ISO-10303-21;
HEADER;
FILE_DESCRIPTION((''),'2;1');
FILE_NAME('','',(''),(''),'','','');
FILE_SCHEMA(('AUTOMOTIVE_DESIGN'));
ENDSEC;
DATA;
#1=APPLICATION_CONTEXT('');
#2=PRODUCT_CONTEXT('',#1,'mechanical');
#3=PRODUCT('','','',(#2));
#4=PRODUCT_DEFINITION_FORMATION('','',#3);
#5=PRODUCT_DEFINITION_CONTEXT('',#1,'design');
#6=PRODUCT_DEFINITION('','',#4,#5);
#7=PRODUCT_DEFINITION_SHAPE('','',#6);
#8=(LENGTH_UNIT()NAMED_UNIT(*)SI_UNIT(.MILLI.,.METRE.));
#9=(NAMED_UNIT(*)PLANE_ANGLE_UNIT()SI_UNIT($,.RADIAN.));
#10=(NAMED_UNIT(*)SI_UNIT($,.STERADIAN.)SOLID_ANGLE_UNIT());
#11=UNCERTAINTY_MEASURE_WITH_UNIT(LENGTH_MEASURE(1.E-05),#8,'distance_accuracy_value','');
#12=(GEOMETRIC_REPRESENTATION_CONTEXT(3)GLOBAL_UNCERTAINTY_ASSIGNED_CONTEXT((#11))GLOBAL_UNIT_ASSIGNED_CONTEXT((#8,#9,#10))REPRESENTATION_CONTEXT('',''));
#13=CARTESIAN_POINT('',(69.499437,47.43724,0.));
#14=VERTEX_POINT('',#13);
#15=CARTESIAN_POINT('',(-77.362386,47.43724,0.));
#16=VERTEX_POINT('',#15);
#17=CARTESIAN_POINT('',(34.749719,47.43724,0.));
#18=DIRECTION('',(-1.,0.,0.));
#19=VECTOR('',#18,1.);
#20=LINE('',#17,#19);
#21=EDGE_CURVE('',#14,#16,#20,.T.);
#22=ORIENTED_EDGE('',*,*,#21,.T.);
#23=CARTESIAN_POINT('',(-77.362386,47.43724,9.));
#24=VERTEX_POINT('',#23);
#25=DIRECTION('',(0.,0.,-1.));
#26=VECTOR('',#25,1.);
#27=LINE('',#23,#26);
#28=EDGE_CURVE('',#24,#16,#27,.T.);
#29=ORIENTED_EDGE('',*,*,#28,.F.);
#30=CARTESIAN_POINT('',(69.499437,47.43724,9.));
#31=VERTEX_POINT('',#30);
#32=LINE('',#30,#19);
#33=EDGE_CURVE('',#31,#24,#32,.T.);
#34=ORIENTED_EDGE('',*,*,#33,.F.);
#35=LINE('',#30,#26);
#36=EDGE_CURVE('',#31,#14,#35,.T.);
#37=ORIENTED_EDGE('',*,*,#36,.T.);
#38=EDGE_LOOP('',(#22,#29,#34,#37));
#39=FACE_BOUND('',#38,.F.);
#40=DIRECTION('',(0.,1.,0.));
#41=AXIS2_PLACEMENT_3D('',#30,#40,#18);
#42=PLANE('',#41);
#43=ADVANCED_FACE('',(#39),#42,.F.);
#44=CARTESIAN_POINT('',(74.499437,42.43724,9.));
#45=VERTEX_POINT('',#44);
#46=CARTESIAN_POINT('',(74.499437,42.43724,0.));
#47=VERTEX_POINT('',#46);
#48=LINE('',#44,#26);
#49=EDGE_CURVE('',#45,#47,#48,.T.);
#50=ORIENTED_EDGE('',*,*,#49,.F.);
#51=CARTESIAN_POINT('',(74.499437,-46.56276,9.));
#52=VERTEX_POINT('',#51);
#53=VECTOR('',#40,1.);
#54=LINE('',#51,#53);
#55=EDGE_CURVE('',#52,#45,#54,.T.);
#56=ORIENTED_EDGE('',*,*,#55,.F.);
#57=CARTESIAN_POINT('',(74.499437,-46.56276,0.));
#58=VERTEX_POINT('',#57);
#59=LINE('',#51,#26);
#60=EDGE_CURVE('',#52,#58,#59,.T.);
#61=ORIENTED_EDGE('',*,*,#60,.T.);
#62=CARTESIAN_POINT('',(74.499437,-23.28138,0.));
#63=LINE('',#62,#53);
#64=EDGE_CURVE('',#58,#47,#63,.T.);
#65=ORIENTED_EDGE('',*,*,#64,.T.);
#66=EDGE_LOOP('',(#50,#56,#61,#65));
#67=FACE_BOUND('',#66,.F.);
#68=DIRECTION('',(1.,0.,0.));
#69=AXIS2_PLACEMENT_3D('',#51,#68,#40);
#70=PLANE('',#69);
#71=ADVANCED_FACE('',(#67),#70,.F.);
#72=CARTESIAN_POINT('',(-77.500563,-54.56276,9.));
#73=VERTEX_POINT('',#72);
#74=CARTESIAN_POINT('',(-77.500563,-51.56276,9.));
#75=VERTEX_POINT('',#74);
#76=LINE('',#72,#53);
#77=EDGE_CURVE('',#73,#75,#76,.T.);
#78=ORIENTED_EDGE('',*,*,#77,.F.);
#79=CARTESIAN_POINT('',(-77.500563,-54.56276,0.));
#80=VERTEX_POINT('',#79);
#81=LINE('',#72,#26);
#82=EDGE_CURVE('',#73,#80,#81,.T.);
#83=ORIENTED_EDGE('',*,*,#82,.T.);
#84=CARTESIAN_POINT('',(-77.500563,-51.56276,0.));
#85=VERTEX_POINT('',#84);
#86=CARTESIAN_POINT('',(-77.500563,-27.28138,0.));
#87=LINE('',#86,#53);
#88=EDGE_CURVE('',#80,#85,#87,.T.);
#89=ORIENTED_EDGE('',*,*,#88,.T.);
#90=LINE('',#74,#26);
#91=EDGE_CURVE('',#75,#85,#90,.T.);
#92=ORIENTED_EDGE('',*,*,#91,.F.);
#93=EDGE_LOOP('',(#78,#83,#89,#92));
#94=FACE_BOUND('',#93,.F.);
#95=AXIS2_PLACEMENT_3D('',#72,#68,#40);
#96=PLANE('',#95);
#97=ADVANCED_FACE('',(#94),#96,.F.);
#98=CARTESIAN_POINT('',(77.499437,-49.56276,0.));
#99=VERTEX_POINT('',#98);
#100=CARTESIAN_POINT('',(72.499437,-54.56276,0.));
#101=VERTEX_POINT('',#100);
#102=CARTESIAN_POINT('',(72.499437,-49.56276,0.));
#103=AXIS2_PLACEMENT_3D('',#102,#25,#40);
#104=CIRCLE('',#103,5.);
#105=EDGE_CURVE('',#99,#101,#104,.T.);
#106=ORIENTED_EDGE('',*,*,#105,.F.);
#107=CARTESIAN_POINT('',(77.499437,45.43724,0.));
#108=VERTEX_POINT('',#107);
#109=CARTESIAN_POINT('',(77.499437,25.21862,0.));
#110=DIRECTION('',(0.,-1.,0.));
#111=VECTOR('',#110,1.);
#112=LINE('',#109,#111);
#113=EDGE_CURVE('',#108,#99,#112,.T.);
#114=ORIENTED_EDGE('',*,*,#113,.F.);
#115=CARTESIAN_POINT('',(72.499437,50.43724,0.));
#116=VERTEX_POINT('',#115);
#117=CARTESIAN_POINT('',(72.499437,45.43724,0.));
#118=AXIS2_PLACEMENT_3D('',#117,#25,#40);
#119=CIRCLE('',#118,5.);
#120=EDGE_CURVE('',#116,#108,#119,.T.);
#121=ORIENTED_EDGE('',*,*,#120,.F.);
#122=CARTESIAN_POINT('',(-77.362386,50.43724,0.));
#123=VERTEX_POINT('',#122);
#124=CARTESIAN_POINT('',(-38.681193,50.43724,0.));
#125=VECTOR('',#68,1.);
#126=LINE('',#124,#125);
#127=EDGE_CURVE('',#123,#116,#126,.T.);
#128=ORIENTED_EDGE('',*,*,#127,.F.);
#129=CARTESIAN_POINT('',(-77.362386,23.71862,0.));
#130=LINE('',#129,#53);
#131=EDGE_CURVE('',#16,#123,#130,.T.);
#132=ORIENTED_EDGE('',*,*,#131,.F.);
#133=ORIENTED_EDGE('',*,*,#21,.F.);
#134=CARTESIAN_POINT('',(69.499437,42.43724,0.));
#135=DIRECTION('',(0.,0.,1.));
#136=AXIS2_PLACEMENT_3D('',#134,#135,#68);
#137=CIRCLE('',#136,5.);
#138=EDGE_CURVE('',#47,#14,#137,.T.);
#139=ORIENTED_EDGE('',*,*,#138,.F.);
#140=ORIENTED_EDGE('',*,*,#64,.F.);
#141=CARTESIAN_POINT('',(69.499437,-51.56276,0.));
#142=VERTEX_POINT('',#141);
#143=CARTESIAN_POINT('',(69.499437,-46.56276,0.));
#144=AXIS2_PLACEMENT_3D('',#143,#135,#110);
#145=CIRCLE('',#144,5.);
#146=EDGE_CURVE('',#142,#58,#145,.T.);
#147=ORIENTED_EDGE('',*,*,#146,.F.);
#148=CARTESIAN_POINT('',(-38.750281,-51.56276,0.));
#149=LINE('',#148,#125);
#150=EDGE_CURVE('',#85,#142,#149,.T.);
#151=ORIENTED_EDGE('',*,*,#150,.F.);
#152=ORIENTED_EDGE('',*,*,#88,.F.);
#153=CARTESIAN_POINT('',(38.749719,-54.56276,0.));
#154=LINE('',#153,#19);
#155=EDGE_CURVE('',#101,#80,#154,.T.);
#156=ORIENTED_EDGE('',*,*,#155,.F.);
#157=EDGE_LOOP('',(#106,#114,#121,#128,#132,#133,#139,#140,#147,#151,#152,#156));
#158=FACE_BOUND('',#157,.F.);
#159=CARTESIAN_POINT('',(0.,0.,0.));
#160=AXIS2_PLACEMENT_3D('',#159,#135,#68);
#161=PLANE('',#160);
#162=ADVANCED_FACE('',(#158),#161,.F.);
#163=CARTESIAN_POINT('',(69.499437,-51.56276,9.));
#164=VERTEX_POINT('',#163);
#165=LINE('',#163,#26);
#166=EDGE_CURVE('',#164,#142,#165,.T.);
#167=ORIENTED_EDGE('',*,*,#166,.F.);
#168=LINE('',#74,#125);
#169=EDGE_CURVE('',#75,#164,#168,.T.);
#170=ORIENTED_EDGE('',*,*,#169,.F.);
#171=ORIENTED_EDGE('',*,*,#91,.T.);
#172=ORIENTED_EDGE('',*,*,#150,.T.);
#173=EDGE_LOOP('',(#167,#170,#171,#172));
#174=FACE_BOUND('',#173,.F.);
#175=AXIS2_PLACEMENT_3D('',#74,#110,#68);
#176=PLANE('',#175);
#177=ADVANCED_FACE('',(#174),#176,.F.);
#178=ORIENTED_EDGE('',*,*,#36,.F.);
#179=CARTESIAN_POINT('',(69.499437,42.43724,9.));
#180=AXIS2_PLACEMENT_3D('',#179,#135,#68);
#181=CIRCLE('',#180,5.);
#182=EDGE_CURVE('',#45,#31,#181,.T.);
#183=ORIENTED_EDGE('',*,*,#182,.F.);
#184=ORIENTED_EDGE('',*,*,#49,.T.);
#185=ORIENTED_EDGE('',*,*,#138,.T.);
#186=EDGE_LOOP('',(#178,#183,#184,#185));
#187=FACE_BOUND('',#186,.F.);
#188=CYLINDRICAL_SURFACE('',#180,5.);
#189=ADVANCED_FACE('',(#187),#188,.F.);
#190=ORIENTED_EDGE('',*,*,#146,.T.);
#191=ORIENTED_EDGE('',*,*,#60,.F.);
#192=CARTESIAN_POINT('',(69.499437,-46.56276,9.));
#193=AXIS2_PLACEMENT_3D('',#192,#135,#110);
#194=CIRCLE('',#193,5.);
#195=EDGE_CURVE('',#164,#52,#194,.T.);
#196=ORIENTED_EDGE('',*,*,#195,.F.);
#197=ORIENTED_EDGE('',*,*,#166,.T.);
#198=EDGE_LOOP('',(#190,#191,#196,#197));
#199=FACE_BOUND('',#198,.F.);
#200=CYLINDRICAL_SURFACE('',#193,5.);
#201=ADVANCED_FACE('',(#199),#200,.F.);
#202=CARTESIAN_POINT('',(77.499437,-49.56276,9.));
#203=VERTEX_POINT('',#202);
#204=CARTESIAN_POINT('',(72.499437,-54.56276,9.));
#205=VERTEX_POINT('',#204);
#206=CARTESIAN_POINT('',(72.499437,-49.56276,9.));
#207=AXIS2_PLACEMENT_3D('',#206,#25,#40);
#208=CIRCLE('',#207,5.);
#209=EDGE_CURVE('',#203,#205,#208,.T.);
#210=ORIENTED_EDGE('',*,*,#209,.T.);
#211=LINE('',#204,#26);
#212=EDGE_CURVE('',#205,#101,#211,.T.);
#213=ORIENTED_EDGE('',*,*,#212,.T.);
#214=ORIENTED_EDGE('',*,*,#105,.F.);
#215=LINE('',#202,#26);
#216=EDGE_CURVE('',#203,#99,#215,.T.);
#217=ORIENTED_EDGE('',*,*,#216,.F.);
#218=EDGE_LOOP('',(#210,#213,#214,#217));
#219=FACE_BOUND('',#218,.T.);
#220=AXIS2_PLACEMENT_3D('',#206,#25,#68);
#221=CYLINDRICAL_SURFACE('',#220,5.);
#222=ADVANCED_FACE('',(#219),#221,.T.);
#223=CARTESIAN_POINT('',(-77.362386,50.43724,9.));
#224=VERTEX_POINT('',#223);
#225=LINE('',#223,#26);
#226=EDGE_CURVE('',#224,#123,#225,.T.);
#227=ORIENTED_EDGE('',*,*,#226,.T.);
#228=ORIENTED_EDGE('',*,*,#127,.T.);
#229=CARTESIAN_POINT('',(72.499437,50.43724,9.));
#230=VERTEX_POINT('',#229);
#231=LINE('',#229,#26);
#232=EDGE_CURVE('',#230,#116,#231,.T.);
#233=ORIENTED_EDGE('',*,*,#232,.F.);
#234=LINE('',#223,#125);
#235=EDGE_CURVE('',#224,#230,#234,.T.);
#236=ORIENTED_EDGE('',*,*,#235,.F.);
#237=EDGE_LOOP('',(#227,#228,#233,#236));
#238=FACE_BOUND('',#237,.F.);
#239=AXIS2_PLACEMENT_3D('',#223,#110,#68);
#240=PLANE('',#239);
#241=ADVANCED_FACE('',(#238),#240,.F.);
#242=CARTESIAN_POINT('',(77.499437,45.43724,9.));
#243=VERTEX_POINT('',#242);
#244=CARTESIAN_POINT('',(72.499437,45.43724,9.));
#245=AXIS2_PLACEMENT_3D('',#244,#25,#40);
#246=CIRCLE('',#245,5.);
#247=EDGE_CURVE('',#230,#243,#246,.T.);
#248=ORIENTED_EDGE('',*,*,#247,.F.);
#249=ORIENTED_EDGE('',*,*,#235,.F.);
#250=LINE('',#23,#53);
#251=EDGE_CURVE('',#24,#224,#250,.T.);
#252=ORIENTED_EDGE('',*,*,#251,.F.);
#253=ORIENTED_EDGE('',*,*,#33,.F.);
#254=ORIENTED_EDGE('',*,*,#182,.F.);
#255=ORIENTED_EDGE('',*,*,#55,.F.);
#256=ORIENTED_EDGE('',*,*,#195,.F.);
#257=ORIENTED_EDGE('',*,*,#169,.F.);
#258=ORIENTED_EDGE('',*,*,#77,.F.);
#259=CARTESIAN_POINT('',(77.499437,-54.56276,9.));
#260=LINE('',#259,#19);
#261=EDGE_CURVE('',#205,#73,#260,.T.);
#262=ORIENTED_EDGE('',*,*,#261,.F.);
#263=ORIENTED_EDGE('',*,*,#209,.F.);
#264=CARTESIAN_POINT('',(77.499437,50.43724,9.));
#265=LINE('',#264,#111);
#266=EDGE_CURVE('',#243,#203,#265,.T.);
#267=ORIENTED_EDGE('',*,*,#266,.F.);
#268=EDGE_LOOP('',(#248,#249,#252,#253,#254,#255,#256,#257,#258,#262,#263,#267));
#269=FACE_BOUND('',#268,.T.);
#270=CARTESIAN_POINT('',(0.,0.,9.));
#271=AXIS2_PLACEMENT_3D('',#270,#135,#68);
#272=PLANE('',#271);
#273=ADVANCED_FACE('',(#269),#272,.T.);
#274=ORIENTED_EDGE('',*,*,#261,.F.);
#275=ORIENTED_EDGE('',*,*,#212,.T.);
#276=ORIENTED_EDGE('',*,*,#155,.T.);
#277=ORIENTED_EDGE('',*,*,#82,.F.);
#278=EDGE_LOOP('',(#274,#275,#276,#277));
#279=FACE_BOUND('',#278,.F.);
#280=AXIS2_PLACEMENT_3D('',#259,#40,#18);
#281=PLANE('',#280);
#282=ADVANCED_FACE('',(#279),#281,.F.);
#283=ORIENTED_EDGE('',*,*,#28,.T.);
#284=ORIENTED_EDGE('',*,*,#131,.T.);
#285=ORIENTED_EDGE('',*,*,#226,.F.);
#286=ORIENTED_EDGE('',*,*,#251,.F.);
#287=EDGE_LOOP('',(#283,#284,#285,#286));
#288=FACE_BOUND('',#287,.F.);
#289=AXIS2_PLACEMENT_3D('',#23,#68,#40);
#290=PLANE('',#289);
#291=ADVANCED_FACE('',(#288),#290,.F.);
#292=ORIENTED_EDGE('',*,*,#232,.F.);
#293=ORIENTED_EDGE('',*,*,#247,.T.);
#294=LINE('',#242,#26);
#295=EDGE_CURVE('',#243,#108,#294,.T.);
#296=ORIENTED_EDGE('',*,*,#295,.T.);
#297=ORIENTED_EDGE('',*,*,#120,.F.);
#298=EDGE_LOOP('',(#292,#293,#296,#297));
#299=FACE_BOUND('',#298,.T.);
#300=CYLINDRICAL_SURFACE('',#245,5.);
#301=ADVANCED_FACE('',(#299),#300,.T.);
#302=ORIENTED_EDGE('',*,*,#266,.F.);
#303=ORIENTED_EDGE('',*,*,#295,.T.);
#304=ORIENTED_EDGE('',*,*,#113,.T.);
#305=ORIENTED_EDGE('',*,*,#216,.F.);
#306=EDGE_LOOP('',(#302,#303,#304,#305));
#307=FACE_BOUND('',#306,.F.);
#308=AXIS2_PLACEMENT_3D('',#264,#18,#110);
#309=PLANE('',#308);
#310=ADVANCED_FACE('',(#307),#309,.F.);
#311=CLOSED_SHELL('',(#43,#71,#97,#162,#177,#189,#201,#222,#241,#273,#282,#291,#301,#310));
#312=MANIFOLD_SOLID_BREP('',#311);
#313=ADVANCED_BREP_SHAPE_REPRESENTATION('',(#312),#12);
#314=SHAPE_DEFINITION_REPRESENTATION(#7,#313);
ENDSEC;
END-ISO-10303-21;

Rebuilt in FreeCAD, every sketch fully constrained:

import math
import FreeCAD as App
import Part
import Sketcher
from FreeCAD import Vector


def edges_at(feature, points):
    """Names of the edges that pass closest to the given points."""
    edges = feature.Shape.Edges
    near = lambda p: min(range(len(edges)), key=lambda i: edges[i].distToShape(Part.Vertex(*p))[0])
    return sorted({f"Edge{near(p) + 1}" for p in points})


def add_polygon(sketch, points):
    """Adds a closed chain of lines whose ends are joined by coincident constraints."""
    first, n = sketch.GeometryCount, len(points)
    for a, b in zip(points, points[1:] + points[:1]):
        sketch.addGeometry(Part.LineSegment(App.Vector(*a, 0), App.Vector(*b, 0)), False)
    for i in range(n):
        sketch.addConstraint(Sketcher.Constraint("Coincident", first + i, 2, first + (i + 1) % n, 1))

doc = App.newDocument("Part")
body = doc.addObject("PartDesign::Body", "Body")

# Sketch on XY plane
sketch1 = doc.addObject("Sketcher::SketchObject", "Sketch")
body.addObject(sketch1)
sketch1.AttachmentSupport = (doc.XY_Plane, [""])
sketch1.MapMode = "FlatFace"
add_polygon(sketch1, [(-100, 75), (-100, -75), (100, -75), (100, 75)])  # lines 0-3
sketch1.addConstraint([
    Sketcher.Constraint("Vertical", 0),
    Sketcher.Constraint("Horizontal", 1),
    Sketcher.Constraint("Vertical", 2),
    Sketcher.Constraint("Horizontal", 3),
    Sketcher.Constraint("Symmetric", 0, 2, 2, 2, -1, 1),
    Sketcher.Constraint("DistanceX", 1, 1, 1, 2, 200.0),
    Sketcher.Constraint("DistanceY", 0, 2, 0, 1, 150.0),
])
pad1 = doc.addObject("PartDesign::Pad", "Pad")
body.addObject(pad1)
pad1.Profile = sketch1
pad1.Length = 9

# Sketch on XY plane
sketch2 = doc.addObject("Sketcher::SketchObject", "Sketch001")
body.addObject(sketch2)
sketch2.AttachmentSupport = (doc.XY_Plane, [""])
sketch2.MapMode = "FlatFace"
sketch2.AttachmentOffset = App.Placement(Vector(0, 0, 9), App.Rotation())
add_polygon(sketch2, [(-100, -75), (100, -75), (100, 75), (-100, 75)])  # lines 0-3
sketch2.addGeometry(Part.LineSegment(Vector(-77.362386, 47.43724, 0), Vector(-77.362386, 50.43724, 0)), False)  # 4
sketch2.addGeometry(Part.LineSegment(Vector(-77.362386, 50.43724, 0), Vector(77.499437, 50.43724, 0)), False)  # 5
sketch2.addGeometry(Part.LineSegment(Vector(77.499437, 50.43724, 0), Vector(77.499437, -54.56276, 0)), False)  # 6
sketch2.addGeometry(Part.LineSegment(Vector(77.499437, -54.56276, 0), Vector(-77.500563, -54.56276, 0)), False)  # 7
sketch2.addGeometry(Part.LineSegment(Vector(-77.500563, -54.56276, 0), Vector(-77.500563, -51.56276, 0)), False)  # 8
sketch2.addGeometry(Part.LineSegment(Vector(-77.500563, -51.56276, 0), Vector(69.499437, -51.56276, 0)), False)  # 9
sketch2.addGeometry(Part.ArcOfCircle(Part.Circle(Vector(69.499437, -46.56276, 0), Vector(0, 0, 1), 5), math.radians(-90), math.radians(0)), False)  # 10
sketch2.addGeometry(Part.LineSegment(Vector(74.499437, -46.56276, 0), Vector(74.499437, 42.43724, 0)), False)  # 11
sketch2.addGeometry(Part.ArcOfCircle(Part.Circle(Vector(69.499437, 42.43724, 0), Vector(0, 0, 1), 5), math.radians(0), math.radians(90)), False)  # 12
sketch2.addGeometry(Part.LineSegment(Vector(69.499437, 47.43724, 0), Vector(-77.362386, 47.43724, 0)), False)  # 13
sketch2.addConstraint([
    Sketcher.Constraint("Coincident", 4, 2, 5, 1),
    Sketcher.Constraint("Coincident", 5, 2, 6, 1),
    Sketcher.Constraint("Coincident", 6, 2, 7, 1),
    Sketcher.Constraint("Coincident", 7, 2, 8, 1),
    Sketcher.Constraint("Coincident", 8, 2, 9, 1),
    Sketcher.Constraint("Tangent", 9, 2, 10, 1),
    Sketcher.Constraint("Tangent", 10, 2, 11, 1),
    Sketcher.Constraint("Tangent", 11, 2, 12, 1),
    Sketcher.Constraint("Tangent", 12, 2, 13, 1),
    Sketcher.Constraint("Coincident", 13, 2, 4, 1),
    Sketcher.Constraint("Horizontal", 0),
    Sketcher.Constraint("Vertical", 1),
    Sketcher.Constraint("Horizontal", 2),
    Sketcher.Constraint("Vertical", 3),
    Sketcher.Constraint("Vertical", 4),
    Sketcher.Constraint("Horizontal", 5),
    Sketcher.Constraint("Vertical", 6),
    Sketcher.Constraint("Horizontal", 7),
    Sketcher.Constraint("Vertical", 8),
    Sketcher.Constraint("Horizontal", 9),
    Sketcher.Constraint("Vertical", 11),
    Sketcher.Constraint("Horizontal", 13),
    Sketcher.Constraint("Equal", 10, 12),
    Sketcher.Constraint("Symmetric", 0, 2, 2, 2, -1, 1),
    Sketcher.Constraint("Equal", 4, 8),
    Sketcher.Constraint("Radius", 10, 5.0),
    Sketcher.Constraint("DistanceX", 0, 1, 0, 2, 200.0),
    Sketcher.Constraint("DistanceX", 7, 2, 7, 1, 155.0),
    Sketcher.Constraint("DistanceX", 9, 1, 9, 2, 147.0),
    Sketcher.Constraint("DistanceY", 1, 1, 1, 2, 150.0),
    Sketcher.Constraint("DistanceY", 4, 1, 4, 2, 3.0),
    Sketcher.Constraint("DistanceY", 6, 2, 6, 1, 105.0),
    Sketcher.Constraint("DistanceX", 5, 1, 5, 2, 154.861823),
    Sketcher.Constraint("DistanceY", 10, 3, -1, 1, 46.56276),
    Sketcher.Constraint("DistanceX", -1, 1, 10, 3, 69.499437),
])
pocket1 = doc.addObject("PartDesign::Pocket", "Pocket")
body.addObject(pocket1)
pocket1.Profile = sketch2
pocket1.Length = 25
doc.recompute()

fillet = doc.addObject("PartDesign::Fillet", "Fillet")
body.addObject(fillet)
fillet.Base = (pocket1, edges_at(pocket1, [(77.499, 50.437, 4.5), (77.499, -54.563, 4.5)]))
fillet.Radius = 5

doc.recompute()
